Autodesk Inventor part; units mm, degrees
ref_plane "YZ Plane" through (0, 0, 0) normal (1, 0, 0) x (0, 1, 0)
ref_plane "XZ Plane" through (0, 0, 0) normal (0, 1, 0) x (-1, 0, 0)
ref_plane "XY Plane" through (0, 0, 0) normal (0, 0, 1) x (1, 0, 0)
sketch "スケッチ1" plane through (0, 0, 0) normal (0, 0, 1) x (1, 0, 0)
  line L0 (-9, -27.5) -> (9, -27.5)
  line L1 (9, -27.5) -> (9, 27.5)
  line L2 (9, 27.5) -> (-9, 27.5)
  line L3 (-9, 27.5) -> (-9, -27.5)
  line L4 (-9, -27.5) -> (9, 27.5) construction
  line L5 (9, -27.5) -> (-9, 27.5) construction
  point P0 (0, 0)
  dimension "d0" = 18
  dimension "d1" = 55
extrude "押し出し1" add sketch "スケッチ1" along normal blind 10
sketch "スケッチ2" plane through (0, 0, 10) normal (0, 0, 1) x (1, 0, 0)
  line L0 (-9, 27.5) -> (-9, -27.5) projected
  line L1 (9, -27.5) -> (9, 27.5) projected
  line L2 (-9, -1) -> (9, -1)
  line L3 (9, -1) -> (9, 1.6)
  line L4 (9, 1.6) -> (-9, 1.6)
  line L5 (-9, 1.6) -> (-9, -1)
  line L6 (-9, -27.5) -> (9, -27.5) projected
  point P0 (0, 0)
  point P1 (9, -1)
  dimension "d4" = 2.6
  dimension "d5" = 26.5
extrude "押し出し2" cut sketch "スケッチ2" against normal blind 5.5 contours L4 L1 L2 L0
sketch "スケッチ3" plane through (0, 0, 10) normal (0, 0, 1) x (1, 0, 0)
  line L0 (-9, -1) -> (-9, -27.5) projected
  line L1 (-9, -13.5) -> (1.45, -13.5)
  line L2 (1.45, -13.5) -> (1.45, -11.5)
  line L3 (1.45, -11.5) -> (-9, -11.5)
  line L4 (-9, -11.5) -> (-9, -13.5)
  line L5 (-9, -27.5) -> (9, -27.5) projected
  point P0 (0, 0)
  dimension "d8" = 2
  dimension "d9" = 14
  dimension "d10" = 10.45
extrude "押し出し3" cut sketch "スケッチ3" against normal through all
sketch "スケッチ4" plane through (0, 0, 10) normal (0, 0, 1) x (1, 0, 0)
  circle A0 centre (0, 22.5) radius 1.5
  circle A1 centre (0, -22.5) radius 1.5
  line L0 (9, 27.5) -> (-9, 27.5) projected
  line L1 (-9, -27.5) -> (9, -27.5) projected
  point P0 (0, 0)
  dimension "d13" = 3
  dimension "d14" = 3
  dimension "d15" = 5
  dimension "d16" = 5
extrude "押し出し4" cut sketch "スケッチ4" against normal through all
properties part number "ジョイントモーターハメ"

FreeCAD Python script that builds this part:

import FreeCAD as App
import Part
import Sketcher
from FreeCAD import Vector
Q = App.Units.Quantity


def add_polygon(sketch, points):
    """Adds a closed chain of lines whose ends are joined by coincident constraints."""
    first, n = sketch.GeometryCount, len(points)
    for a, b in zip(points, points[1:] + points[:1]):
        sketch.addGeometry(Part.LineSegment(App.Vector(*a, 0), App.Vector(*b, 0)), False)
    for i in range(n):
        sketch.addConstraint(Sketcher.Constraint("Coincident", first + i, 2, first + (i + 1) % n, 1))

doc = App.newDocument("Part")
body = doc.addObject("PartDesign::Body", "Body")

sketch1 = doc.addObject("Sketcher::SketchObject", "Sketch")
body.addObject(sketch1)
sketch1.AttachmentSupport = (doc.XY_Plane, [""])
sketch1.MapMode = "FlatFace"
add_polygon(sketch1, [(-9, 27.5), (-9, -27.5), (9, -27.5), (9, 27.5)])
sketch1.addConstraint([
    Sketcher.Constraint("Vertical", 0),
    Sketcher.Constraint("Horizontal", 1),
    Sketcher.Constraint("Vertical", 2),
    Sketcher.Constraint("Horizontal", 3),
    Sketcher.Constraint("Symmetric", 0, 2, 2, 2, -1, 1),
    Sketcher.Constraint("DistanceX", 1, 1, 1, 2, Q("18 mm")),
    Sketcher.Constraint("DistanceY", 0, 2, 0, 1, Q("55 mm")),
])
pad1 = doc.addObject("PartDesign::Pad", "Pad")
body.addObject(pad1)
pad1.Profile = sketch1
pad1.Length = 10

sketch2 = doc.addObject("Sketcher::SketchObject", "Sketch001")
body.addObject(sketch2)
sketch2.AttachmentSupport = (doc.XY_Plane, [""])
sketch2.MapMode = "FlatFace"
sketch2.AttachmentOffset = App.Placement(Vector(0, 0, 10), App.Rotation())
add_polygon(sketch2, [(9, 1.6), (-9, 1.6), (-9, -1), (9, -1)])
sketch2.addConstraint([
    Sketcher.Constraint("Horizontal", 0),
    Sketcher.Constraint("Vertical", 1),
    Sketcher.Constraint("Horizontal", 2),
    Sketcher.Constraint("Vertical", 3),
    Sketcher.Constraint("DistanceY", 1, 2, 1, 1, Q("2.6 mm")),
    Sketcher.Constraint("DistanceX", 0, 2, 0, 1, Q("18 mm")),
    Sketcher.Constraint("DistanceX", 0, 2, -1, 1, Q("9 mm")),
    Sketcher.Constraint("DistanceY", 1, 2, -1, 1, Q("1 mm")),
])
pocket1 = doc.addObject("PartDesign::Pocket", "Pocket")
body.addObject(pocket1)
pocket1.Profile = sketch2
pocket1.Length = 5.5

sketch3 = doc.addObject("Sketcher::SketchObject", "Sketch002")
body.addObject(sketch3)
sketch3.AttachmentSupport = (doc.XY_Plane, [""])
sketch3.MapMode = "FlatFace"
sketch3.AttachmentOffset = App.Placement(Vector(0, 0, 10), App.Rotation())
add_polygon(sketch3, [(1.45, -11.5), (-9, -11.5), (-9, -13.5), (1.45, -13.5)])
sketch3.addConstraint([
    Sketcher.Constraint("Horizontal", 0),
    Sketcher.Constraint("Vertical", 1),
    Sketcher.Constraint("Horizontal", 2),
    Sketcher.Constraint("Vertical", 3),
    Sketcher.Constraint("DistanceY", 1, 2, 1, 1, Q("2 mm")),
    Sketcher.Constraint("DistanceX", 0, 2, 0, 1, Q("10.45 mm")),
    Sketcher.Constraint("DistanceX", 0, 2, -1, 1, Q("9 mm")),
    Sketcher.Constraint("DistanceY", 0, 2, -1, 1, Q("11.5 mm")),
])
pocket2 = doc.addObject("PartDesign::Pocket", "Pocket001")
body.addObject(pocket2)
pocket2.Profile = sketch3
pocket2.Type = "ThroughAll"

sketch4 = doc.addObject("Sketcher::SketchObject", "Sketch003")
body.addObject(sketch4)
sketch4.AttachmentSupport = (doc.XY_Plane, [""])
sketch4.MapMode = "FlatFace"
sketch4.AttachmentOffset = App.Placement(Vector(0, 0, 10), App.Rotation())
sketch4.addGeometry([
    Part.Circle(Vector(0, 22.5, 0), Vector(0, 0, 1), 1.5),
    Part.Circle(Vector(0, -22.5, 0), Vector(0, 0, 1), 1.5),
], False)
sketch4.addConstraint([
    Sketcher.Constraint("Equal", 0, 1),
    Sketcher.Constraint("Symmetric", 0, 3, 1, 3, -1, 1),
    Sketcher.Constraint("PointOnObject", 0, 3, -2),
    Sketcher.Constraint("Diameter", 0, Q("3 mm")),
    Sketcher.Constraint("DistanceY", 1, 3, 0, 3, Q("45 mm")),
])
pocket3 = doc.addObject("PartDesign::Pocket", "Pocket002")
body.addObject(pocket3)
pocket3.Profile = sketch4
pocket3.Type = "ThroughAll"

doc.recompute()
